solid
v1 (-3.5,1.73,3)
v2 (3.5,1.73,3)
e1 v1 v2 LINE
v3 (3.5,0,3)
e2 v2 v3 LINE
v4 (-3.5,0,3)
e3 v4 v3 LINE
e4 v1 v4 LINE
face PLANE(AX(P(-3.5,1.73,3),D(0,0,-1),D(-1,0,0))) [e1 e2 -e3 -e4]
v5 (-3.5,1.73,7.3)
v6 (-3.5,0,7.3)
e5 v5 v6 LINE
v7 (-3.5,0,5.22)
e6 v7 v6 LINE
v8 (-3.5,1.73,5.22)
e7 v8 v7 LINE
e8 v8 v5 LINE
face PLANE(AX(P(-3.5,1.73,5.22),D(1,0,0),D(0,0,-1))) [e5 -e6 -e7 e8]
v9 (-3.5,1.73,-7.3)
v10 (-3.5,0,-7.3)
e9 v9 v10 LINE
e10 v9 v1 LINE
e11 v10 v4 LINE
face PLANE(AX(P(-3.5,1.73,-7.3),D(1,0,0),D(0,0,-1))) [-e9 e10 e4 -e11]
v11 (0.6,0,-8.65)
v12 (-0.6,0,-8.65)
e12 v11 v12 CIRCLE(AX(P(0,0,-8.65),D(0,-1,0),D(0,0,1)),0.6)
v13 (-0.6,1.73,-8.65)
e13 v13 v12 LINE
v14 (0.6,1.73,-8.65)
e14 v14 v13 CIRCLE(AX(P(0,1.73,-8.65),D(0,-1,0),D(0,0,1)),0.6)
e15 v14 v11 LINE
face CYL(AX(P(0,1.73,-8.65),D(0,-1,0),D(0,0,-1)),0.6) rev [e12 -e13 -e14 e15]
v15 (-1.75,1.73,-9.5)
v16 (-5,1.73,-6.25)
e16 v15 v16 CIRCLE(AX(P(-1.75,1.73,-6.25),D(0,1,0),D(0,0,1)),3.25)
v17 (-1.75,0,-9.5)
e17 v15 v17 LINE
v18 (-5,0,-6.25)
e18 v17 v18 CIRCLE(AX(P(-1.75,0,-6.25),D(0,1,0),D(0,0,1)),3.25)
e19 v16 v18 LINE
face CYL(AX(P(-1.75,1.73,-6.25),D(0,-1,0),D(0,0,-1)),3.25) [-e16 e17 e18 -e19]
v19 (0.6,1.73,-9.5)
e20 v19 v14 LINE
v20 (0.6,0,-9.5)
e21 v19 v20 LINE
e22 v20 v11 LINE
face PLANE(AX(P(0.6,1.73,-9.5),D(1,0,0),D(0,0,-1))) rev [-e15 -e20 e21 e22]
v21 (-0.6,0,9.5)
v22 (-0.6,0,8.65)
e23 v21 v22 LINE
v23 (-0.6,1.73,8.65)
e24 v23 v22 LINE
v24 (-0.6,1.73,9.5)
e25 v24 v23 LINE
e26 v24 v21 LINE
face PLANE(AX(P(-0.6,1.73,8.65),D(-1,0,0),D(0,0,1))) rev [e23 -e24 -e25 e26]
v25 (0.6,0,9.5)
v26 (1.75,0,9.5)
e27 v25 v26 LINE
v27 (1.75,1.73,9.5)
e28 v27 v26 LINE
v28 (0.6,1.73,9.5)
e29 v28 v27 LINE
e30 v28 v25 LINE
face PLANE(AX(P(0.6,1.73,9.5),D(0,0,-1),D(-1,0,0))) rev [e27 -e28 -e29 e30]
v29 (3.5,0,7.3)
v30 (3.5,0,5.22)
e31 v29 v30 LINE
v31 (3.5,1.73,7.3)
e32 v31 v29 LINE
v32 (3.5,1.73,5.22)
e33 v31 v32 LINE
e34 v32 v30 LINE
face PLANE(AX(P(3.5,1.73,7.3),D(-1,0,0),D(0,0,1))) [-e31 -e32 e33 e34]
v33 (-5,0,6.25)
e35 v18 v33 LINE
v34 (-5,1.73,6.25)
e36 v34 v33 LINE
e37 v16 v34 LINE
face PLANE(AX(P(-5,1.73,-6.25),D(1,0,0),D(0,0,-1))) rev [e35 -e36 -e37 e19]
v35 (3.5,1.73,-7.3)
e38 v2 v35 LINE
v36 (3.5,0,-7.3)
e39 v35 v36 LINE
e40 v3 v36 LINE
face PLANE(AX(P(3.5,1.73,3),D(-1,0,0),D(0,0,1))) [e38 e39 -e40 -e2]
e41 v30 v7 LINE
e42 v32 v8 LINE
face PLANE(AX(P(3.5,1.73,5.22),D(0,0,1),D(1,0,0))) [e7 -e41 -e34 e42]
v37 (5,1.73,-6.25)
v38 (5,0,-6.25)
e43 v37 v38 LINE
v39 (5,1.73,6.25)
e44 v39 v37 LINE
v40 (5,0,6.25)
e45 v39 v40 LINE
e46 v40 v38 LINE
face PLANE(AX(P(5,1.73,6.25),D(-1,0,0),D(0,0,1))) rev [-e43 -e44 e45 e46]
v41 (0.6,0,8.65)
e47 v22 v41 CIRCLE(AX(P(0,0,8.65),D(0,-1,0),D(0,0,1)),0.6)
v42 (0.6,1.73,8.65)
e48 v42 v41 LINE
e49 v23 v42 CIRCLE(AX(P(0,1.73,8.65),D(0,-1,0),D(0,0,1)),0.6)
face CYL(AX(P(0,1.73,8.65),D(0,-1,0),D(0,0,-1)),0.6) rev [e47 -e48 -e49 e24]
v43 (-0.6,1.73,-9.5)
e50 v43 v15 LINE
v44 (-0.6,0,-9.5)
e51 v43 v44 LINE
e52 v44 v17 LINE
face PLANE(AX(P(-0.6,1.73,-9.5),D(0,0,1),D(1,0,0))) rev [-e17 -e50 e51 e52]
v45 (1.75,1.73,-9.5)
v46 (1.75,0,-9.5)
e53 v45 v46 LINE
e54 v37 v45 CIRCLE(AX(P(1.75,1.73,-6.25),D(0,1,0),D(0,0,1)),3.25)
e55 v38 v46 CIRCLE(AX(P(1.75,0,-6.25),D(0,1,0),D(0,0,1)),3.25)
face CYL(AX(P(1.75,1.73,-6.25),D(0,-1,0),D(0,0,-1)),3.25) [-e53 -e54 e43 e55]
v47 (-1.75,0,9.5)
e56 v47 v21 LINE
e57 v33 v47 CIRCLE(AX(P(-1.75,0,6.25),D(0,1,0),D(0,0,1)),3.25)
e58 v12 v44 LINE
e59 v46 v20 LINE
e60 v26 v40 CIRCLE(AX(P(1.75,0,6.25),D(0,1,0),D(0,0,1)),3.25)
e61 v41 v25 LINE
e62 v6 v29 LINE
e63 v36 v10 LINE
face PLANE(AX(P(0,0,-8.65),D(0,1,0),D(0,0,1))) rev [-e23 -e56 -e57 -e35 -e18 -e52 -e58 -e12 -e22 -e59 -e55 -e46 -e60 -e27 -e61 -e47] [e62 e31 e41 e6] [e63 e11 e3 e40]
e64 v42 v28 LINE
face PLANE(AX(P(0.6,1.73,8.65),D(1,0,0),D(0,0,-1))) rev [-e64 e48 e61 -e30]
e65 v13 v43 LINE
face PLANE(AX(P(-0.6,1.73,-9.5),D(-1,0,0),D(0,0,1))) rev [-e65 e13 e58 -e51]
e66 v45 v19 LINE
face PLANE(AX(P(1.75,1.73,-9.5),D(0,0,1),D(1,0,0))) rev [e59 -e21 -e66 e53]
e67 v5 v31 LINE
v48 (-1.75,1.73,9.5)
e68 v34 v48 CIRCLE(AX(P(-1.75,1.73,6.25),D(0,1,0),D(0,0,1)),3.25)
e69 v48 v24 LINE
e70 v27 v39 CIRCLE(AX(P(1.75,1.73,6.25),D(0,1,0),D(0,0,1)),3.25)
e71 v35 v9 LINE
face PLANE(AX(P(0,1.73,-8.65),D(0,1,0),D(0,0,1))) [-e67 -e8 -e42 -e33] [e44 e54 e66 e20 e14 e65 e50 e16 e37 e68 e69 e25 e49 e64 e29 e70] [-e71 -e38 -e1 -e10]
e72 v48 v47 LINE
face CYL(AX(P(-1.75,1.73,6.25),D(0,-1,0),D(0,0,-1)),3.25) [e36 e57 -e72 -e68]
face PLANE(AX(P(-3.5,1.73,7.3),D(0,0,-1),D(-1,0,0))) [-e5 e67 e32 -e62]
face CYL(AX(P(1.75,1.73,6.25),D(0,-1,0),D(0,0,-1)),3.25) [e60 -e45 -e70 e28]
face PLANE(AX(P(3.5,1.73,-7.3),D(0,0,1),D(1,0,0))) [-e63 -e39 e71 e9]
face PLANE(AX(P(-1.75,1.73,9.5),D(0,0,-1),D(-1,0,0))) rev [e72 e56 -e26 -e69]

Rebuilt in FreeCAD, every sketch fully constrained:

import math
import FreeCAD as App
import Part
import Sketcher
from FreeCAD import Vector

doc = App.newDocument("Part")
body = doc.addObject("PartDesign::Body", "Body")

sketch1 = doc.addObject("Sketcher::SketchObject", "Sketch")
body.addObject(sketch1)
sketch1.AttachmentSupport = (doc.XZ_Plane, [""])
sketch1.MapMode = "FlatFace"
sketch1.addGeometry([
    Part.LineSegment(Vector(-0.6, -9.5, 0), Vector(-1.8, -9.5, 0)),
    Part.ArcOfCircle(Part.Circle(Vector(-1.8, -6.2, 0), Vector(0, 0, 1), 3.2), math.radians(180), math.radians(270)),
    Part.LineSegment(Vector(-5, -6.2, 0), Vector(-5, 6.2, 0)),
    Part.ArcOfCircle(Part.Circle(Vector(-1.8, 6.2, 0), Vector(0, 0, 1), 3.2), math.radians(90), math.radians(180)),
    Part.LineSegment(Vector(-1.8, 9.5, 0), Vector(-0.6, 9.5, 0)),
    Part.LineSegment(Vector(-0.6, 9.5, 0), Vector(-0.6, 8.7, 0)),
    Part.ArcOfCircle(Part.Circle(Vector(0, 8.7, 0), Vector(0, 0, 1), 0.6), math.radians(180), math.radians(360)),
    Part.LineSegment(Vector(0.6, 8.7, 0), Vector(0.6, 9.5, 0)),
    Part.LineSegment(Vector(0.6, 9.5, 0), Vector(1.8, 9.5, 0)),
    Part.ArcOfCircle(Part.Circle(Vector(1.8, 6.2, 0), Vector(0, 0, 1), 3.2), math.radians(0), math.radians(90)),
    Part.LineSegment(Vector(5, 6.2, 0), Vector(5, -6.2, 0)),
    Part.ArcOfCircle(Part.Circle(Vector(1.8, -6.2, 0), Vector(0, 0, 1), 3.2), math.radians(-90), math.radians(0)),
    Part.LineSegment(Vector(1.8, -9.5, 0), Vector(0.6, -9.5, 0)),
    Part.LineSegment(Vector(0.6, -9.5, 0), Vector(0.6, -8.7, 0)),
    Part.ArcOfCircle(Part.Circle(Vector(0, -8.7, 0), Vector(0, 0, 1), 0.6), math.radians(0), math.radians(180)),
    Part.LineSegment(Vector(-0.6, -8.7, 0), Vector(-0.6, -9.5, 0)),
    Part.LineSegment(Vector(3.5, 7.3, 0), Vector(-3.5, 7.3, 0)),
    Part.LineSegment(Vector(-3.5, 7.3, 0), Vector(-3.5, 5.2, 0)),
    Part.LineSegment(Vector(-3.5, 5.2, 0), Vector(3.5, 5.2, 0)),
    Part.LineSegment(Vector(3.5, 5.2, 0), Vector(3.5, 7.3, 0)),
    Part.LineSegment(Vector(3.5, 3, 0), Vector(-3.5, 3, 0)),
    Part.LineSegment(Vector(-3.5, 3, 0), Vector(-3.5, -7.3, 0)),
    Part.LineSegment(Vector(-3.5, -7.3, 0), Vector(3.5, -7.3, 0)),
    Part.LineSegment(Vector(3.5, -7.3, 0), Vector(3.5, 3, 0)),
], False)
sketch1.addConstraint([
    Sketcher.Constraint("Tangent", 0, 2, 1, 2),
    Sketcher.Constraint("Tangent", 1, 1, 2, 1),
    Sketcher.Constraint("Tangent", 2, 2, 3, 2),
    Sketcher.Constraint("Tangent", 3, 1, 4, 1),
    Sketcher.Constraint("Coincident", 4, 2, 5, 1),
    Sketcher.Constraint("Tangent", 5, 2, 6, 1),
    Sketcher.Constraint("Tangent", 6, 2, 7, 1),
    Sketcher.Constraint("Coincident", 7, 2, 8, 1),
    Sketcher.Constraint("Tangent", 8, 2, 9, 2),
    Sketcher.Constraint("Tangent", 9, 1, 10, 1),
    Sketcher.Constraint("Tangent", 10, 2, 11, 2),
    Sketcher.Constraint("Tangent", 11, 1, 12, 1),
    Sketcher.Constraint("Coincident", 12, 2, 13, 1),
    Sketcher.Constraint("Tangent", 13, 2, 14, 1),
    Sketcher.Constraint("Tangent", 14, 2, 15, 1),
    Sketcher.Constraint("Coincident", 15, 2, 0, 1),
    Sketcher.Constraint("Coincident", 16, 2, 17, 1),
    Sketcher.Constraint("Coincident", 17, 2, 18, 1),
    Sketcher.Constraint("Coincident", 18, 2, 19, 1),
    Sketcher.Constraint("Coincident", 19, 2, 16, 1),
    Sketcher.Constraint("Coincident", 20, 2, 21, 1),
    Sketcher.Constraint("Coincident", 21, 2, 22, 1),
    Sketcher.Constraint("Coincident", 22, 2, 23, 1),
    Sketcher.Constraint("Coincident", 23, 2, 20, 1),
    Sketcher.Constraint("Horizontal", 0),
    Sketcher.Constraint("Vertical", 2),
    Sketcher.Constraint("Horizontal", 4),
    Sketcher.Constraint("Vertical", 5),
    Sketcher.Constraint("Vertical", 7),
    Sketcher.Constraint("Horizontal", 8),
    Sketcher.Constraint("Vertical", 10),
    Sketcher.Constraint("Horizontal", 12),
    Sketcher.Constraint("Vertical", 13),
    Sketcher.Constraint("Vertical", 15),
    Sketcher.Constraint("Horizontal", 16),
    Sketcher.Constraint("Vertical", 17),
    Sketcher.Constraint("Horizontal", 18),
    Sketcher.Constraint("Vertical", 19),
    Sketcher.Constraint("Horizontal", 20),
    Sketcher.Constraint("Vertical", 21),
    Sketcher.Constraint("Horizontal", 22),
    Sketcher.Constraint("Vertical", 23),
    Sketcher.Constraint("Equal", 1, 3),
    Sketcher.Constraint("Equal", 3, 9),
    Sketcher.Constraint("Equal", 9, 11),
    Sketcher.Constraint("Equal", 6, 14),
    Sketcher.Constraint("Symmetric", 1, 3, 9, 3, -1, 1),
    Sketcher.Constraint("Symmetric", 6, 3, 14, 3, -1, 1),
    Sketcher.Constraint("Symmetric", 19, 2, 21, 2, -1, 1),
    Sketcher.Constraint("Symmetric", 4, 2, 7, 2, -2),
    Sketcher.Constraint("Horizontal", 1, 3, 11, 3),
    Sketcher.Constraint("Vertical", 17, 2, 20, 2),
    Sketcher.Constraint("Vertical", 19, 2, 22, 2),
    Sketcher.Constraint("Radius", 6, 0.6),
    Sketcher.Constraint("DistanceX", 16, 2, 16, 1, 7.0),
    Sketcher.Constraint("Radius", 1, 3.25),
    Sketcher.Constraint("DistanceY", 2, 1, 2, 2, 12.5),
    Sketcher.Constraint("DistanceY", 21, 2, 21, 1, 10.3),
    Sketcher.Constraint("DistanceX", 1, 1, -1, 1, 5.0),
    Sketcher.Constraint("DistanceY", -1, 1, 20, 2, 3.0),
    Sketcher.Constraint("DistanceY", 5, 2, 5, 1, 0.85),
    Sketcher.Constraint("DistanceY", 17, 2, 17, 1, 2.08),
])
pad1 = doc.addObject("PartDesign::Pad", "Pad")
body.addObject(pad1)
pad1.Profile = sketch1
pad1.Length = 1.73
pad1.Reversed = True

doc.recompute()
